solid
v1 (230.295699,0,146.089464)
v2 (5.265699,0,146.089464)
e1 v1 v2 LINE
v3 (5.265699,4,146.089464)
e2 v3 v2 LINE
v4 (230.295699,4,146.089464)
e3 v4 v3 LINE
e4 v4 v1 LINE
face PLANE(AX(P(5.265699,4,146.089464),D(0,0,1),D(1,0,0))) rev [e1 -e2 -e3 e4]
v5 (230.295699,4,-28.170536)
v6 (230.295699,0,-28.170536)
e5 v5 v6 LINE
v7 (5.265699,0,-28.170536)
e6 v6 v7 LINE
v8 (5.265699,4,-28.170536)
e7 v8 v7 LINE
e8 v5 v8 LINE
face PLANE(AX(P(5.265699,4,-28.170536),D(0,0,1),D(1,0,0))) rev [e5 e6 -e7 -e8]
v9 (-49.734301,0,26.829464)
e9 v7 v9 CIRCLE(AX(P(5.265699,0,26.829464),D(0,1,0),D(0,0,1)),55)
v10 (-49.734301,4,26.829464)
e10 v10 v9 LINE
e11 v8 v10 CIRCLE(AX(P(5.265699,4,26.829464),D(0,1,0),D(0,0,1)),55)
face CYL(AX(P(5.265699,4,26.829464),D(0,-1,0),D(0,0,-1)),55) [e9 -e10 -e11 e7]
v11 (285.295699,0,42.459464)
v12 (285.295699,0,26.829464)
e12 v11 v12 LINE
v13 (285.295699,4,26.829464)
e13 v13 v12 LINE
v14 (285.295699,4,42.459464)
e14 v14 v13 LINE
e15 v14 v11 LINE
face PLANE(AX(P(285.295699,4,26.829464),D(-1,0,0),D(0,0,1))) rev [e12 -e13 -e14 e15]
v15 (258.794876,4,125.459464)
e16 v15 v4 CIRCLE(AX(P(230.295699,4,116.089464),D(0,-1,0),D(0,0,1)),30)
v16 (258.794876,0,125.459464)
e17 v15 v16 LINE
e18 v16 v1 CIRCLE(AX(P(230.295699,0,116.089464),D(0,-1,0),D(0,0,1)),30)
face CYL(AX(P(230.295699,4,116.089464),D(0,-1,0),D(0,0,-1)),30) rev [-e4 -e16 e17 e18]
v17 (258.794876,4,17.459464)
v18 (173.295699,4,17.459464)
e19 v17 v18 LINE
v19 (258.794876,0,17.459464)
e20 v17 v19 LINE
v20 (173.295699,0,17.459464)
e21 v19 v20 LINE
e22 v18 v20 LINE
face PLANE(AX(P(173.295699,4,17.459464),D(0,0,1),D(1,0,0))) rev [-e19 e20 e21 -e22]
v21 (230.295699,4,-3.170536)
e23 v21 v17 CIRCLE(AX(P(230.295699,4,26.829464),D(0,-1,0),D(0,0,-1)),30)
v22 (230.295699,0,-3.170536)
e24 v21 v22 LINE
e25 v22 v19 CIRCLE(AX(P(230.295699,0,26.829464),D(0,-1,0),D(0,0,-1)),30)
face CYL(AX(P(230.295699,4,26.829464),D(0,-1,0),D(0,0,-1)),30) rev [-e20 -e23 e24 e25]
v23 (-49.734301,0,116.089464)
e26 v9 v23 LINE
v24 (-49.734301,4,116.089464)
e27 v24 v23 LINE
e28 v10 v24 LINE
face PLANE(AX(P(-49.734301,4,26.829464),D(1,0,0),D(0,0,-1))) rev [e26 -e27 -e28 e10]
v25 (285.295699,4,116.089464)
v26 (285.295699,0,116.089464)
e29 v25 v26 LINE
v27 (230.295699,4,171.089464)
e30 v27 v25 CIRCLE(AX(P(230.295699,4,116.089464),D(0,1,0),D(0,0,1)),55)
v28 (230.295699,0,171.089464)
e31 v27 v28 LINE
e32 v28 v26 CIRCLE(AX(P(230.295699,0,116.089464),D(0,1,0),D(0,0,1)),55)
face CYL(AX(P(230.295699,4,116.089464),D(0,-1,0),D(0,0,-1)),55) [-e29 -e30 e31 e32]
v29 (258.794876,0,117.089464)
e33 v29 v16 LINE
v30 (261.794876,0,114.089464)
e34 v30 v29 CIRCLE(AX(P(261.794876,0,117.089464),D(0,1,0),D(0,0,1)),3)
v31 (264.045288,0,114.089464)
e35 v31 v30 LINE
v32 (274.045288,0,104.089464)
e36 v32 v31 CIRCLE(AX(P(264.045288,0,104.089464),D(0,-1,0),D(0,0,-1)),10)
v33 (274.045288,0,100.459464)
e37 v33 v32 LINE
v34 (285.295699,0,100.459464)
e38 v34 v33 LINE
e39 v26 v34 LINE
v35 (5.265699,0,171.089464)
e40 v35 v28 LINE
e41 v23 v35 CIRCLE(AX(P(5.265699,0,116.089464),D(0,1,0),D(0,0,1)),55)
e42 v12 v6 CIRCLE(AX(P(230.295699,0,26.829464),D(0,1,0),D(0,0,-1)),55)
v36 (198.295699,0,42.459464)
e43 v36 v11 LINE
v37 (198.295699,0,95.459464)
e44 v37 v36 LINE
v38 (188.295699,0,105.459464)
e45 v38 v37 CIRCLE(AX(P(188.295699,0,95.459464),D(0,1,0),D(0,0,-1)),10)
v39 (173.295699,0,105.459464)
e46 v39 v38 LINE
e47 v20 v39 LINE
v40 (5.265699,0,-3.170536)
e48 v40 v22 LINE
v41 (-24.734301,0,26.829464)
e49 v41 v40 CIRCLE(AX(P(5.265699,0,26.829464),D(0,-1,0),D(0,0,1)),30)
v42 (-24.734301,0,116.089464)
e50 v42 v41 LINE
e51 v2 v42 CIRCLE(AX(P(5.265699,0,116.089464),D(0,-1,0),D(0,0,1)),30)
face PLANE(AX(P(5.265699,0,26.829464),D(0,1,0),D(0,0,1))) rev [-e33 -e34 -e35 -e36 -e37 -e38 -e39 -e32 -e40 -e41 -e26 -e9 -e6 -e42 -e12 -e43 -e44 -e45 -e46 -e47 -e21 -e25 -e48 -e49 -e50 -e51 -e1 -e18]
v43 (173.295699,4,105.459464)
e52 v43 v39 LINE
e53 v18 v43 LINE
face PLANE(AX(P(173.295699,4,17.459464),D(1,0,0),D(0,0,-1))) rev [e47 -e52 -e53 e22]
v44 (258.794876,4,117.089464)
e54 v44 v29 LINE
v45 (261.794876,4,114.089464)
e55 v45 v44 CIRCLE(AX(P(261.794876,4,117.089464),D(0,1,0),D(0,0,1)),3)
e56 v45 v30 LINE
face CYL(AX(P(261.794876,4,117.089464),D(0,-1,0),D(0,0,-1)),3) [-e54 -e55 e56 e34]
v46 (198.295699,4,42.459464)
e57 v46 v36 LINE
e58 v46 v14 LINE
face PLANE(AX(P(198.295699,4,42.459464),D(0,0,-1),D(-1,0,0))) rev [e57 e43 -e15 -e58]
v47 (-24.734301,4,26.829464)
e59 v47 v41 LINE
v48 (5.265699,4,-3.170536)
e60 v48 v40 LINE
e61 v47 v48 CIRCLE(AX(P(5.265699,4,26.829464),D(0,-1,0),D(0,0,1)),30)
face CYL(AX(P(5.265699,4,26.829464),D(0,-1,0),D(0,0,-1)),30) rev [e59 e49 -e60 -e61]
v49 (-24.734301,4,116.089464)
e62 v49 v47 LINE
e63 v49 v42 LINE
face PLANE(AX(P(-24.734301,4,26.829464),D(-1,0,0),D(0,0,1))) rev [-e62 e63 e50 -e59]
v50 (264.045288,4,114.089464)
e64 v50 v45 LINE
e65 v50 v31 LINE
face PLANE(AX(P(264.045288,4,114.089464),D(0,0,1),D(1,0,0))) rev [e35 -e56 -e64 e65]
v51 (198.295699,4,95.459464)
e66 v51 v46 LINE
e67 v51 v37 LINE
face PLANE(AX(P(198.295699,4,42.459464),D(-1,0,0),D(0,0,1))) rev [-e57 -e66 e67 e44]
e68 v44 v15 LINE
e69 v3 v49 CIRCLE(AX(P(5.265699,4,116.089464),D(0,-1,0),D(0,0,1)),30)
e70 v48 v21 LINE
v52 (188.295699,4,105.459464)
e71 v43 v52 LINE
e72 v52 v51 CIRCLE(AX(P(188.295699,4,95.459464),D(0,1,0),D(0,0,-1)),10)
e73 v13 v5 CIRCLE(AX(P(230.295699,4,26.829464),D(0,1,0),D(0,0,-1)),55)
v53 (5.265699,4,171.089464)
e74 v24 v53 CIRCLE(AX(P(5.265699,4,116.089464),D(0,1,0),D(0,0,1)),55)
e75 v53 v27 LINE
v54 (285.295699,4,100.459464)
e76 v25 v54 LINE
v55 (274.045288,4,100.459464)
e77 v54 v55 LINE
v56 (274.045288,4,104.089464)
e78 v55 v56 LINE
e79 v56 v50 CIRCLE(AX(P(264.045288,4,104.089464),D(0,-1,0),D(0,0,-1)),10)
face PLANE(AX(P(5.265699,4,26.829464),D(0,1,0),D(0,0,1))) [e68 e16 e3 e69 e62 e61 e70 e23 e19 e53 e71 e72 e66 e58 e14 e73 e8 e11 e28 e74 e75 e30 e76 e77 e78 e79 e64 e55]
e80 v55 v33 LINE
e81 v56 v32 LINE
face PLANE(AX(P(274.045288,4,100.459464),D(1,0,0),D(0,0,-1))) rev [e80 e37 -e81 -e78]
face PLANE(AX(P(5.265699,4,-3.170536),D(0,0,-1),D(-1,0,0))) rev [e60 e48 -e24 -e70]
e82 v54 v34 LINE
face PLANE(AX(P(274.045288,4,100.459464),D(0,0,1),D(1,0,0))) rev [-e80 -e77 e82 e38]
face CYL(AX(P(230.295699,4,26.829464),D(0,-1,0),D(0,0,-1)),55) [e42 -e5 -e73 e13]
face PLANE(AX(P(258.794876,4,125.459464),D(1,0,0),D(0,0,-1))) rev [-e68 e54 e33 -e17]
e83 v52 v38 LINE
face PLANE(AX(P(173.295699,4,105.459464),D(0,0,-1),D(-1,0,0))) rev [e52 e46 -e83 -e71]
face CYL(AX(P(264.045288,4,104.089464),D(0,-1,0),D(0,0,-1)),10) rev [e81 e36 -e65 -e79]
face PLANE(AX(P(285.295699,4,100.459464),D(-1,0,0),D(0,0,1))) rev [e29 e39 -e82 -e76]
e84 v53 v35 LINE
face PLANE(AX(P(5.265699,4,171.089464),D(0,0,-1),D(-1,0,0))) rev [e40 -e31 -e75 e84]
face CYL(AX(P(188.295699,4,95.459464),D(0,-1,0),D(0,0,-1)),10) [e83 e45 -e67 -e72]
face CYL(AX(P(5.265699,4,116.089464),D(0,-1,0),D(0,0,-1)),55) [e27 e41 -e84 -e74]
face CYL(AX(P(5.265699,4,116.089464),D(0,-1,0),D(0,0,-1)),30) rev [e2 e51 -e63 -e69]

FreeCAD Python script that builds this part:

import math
import FreeCAD as App
import Part
import Sketcher
from FreeCAD import Vector
Q = App.Units.Quantity

doc = App.newDocument("Part")
params = doc.addObject("Spreadsheet::Sheet", "Params")
for row, (alias, value) in enumerate([
    ("sketch1_radius", "10 mm"),
    ("sketch1_radius2", "3 mm"),
    ("sketch1_radius3", "30 mm"),
    ("sketch1_radius4", "55 mm"),
    ("sketch1_width", "15 mm"),
    ("pad1_length", "4 mm"),
], start=1):
    params.set(f"A{row}", alias)
    params.set(f"B{row}", "=" + value)
    params.setAlias(f"B{row}", alias)

body = doc.addObject("PartDesign::Body", "Body")

# Sketch on XZ plane
sketch1 = body.newObject("Sketcher::SketchObject", "Sketch")
sketch1.AttachmentSupport = (doc.getObject("XZ_Plane"), [""])
sketch1.MapMode = "FlatFace"
sketch1.addGeometry(Part.LineSegment(Vector(285.3, 116.1, 0), Vector(285.3, 100.5, 0)), False)
sketch1.addGeometry(Part.LineSegment(Vector(285.3, 100.5, 0), Vector(274, 100.5, 0)), False)
sketch1.addGeometry(Part.LineSegment(Vector(274, 100.5, 0), Vector(274, 104.1, 0)), False)
sketch1.addGeometry(Part.ArcOfCircle(Part.Circle(Vector(264, 104.1, 0), Vector(0, 0, 1), 10), math.radians(0), math.radians(90)), False)
sketch1.addGeometry(Part.LineSegment(Vector(264, 114.1, 0), Vector(261.8, 114.1, 0)), False)
sketch1.addGeometry(Part.ArcOfCircle(Part.Circle(Vector(261.8, 117.1, 0), Vector(0, 0, 1), 3), math.radians(180), math.radians(270)), False)
sketch1.addGeometry(Part.LineSegment(Vector(258.8, 117.1, 0), Vector(258.8, 125.5, 0)), False)
sketch1.addGeometry(Part.ArcOfCircle(Part.Circle(Vector(230.3, 116.1, 0), Vector(0, 0, 1), 30), math.radians(18), math.radians(90)), False)
sketch1.addGeometry(Part.LineSegment(Vector(230.3, 146.1, 0), Vector(5.3, 146.1, 0)), False)
sketch1.addGeometry(Part.ArcOfCircle(Part.Circle(Vector(5.3, 116.1, 0), Vector(0, 0, 1), 30), math.radians(90), math.radians(180)), False)
sketch1.addGeometry(Part.LineSegment(Vector(-24.7, 116.1, 0), Vector(-24.7, 26.8, 0)), False)
sketch1.addGeometry(Part.ArcOfCircle(Part.Circle(Vector(5.3, 26.8, 0), Vector(0, 0, 1), 30), math.radians(180), math.radians(270)), False)
sketch1.addGeometry(Part.LineSegment(Vector(5.3, -3.2, 0), Vector(230.3, -3.2, 0)), False)
sketch1.addGeometry(Part.ArcOfCircle(Part.Circle(Vector(230.3, 26.8, 0), Vector(0, 0, 1), 30), math.radians(-90), math.radians(-18)), False)
sketch1.addGeometry(Part.LineSegment(Vector(258.8, 17.5, 0), Vector(173.3, 17.5, 0)), False)
sketch1.addGeometry(Part.LineSegment(Vector(173.3, 17.5, 0), Vector(173.3, 105.5, 0)), False)
sketch1.addGeometry(Part.LineSegment(Vector(173.3, 105.5, 0), Vector(188.3, 105.5, 0)), False)
sketch1.addGeometry(Part.ArcOfCircle(Part.Circle(Vector(188.3, 95.5, 0), Vector(0, 0, 1), 10), math.radians(0), math.radians(90)), False)
sketch1.addGeometry(Part.LineSegment(Vector(198.3, 95.5, 0), Vector(198.3, 42.5, 0)), False)
sketch1.addGeometry(Part.LineSegment(Vector(198.3, 42.5, 0), Vector(285.3, 42.5, 0)), False)
sketch1.addGeometry(Part.LineSegment(Vector(285.3, 42.5, 0), Vector(285.3, 26.8, 0)), False)
sketch1.addGeometry(Part.ArcOfCircle(Part.Circle(Vector(230.3, 26.8, 0), Vector(0, 0, 1), 55), math.radians(-90), math.radians(0)), False)
sketch1.addGeometry(Part.LineSegment(Vector(230.3, -28.2, 0), Vector(5.3, -28.2, 0)), False)
sketch1.addGeometry(Part.ArcOfCircle(Part.Circle(Vector(5.3, 26.8, 0), Vector(0, 0, 1), 55), math.radians(180), math.radians(270)), False)
sketch1.addGeometry(Part.LineSegment(Vector(-49.7, 26.8, 0), Vector(-49.7, 116.1, 0)), False)
sketch1.addGeometry(Part.ArcOfCircle(Part.Circle(Vector(5.3, 116.1, 0), Vector(0, 0, 1), 55), math.radians(90), math.radians(180)), False)
sketch1.addGeometry(Part.LineSegment(Vector(5.3, 171.1, 0), Vector(230.3, 171.1, 0)), False)
sketch1.addGeometry(Part.ArcOfCircle(Part.Circle(Vector(230.3, 116.1, 0), Vector(0, 0, 1), 55), math.radians(0), math.radians(90)), False)
sketch1.addConstraint(Sketcher.Constraint("Coincident", 0, 2, 1, 1))
sketch1.addConstraint(Sketcher.Constraint("Coincident", 1, 2, 2, 1))
sketch1.addConstraint(Sketcher.Constraint("Tangent", 2, 2, 3, 1))
sketch1.addConstraint(Sketcher.Constraint("Tangent", 3, 2, 4, 1))
sketch1.addConstraint(Sketcher.Constraint("Tangent", 4, 2, 5, 2))
sketch1.addConstraint(Sketcher.Constraint("Tangent", 5, 1, 6, 1))
sketch1.addConstraint(Sketcher.Constraint("Coincident", 6, 2, 7, 1))
sketch1.addConstraint(Sketcher.Constraint("Tangent", 7, 2, 8, 1))
sketch1.addConstraint(Sketcher.Constraint("Tangent", 8, 2, 9, 1))
sketch1.addConstraint(Sketcher.Constraint("Tangent", 9, 2, 10, 1))
sketch1.addConstraint(Sketcher.Constraint("Tangent", 10, 2, 11, 1))
sketch1.addConstraint(Sketcher.Constraint("Tangent", 11, 2, 12, 1))
sketch1.addConstraint(Sketcher.Constraint("Tangent", 12, 2, 13, 1))
sketch1.addConstraint(Sketcher.Constraint("Coincident", 13, 2, 14, 1))
sketch1.addConstraint(Sketcher.Constraint("Coincident", 14, 2, 15, 1))
sketch1.addConstraint(Sketcher.Constraint("Coincident", 15, 2, 16, 1))
sketch1.addConstraint(Sketcher.Constraint("Tangent", 16, 2, 17, 2))
sketch1.addConstraint(Sketcher.Constraint("Tangent", 17, 1, 18, 1))
sketch1.addConstraint(Sketcher.Constraint("Coincident", 18, 2, 19, 1))
sketch1.addConstraint(Sketcher.Constraint("Coincident", 19, 2, 20, 1))
sketch1.addConstraint(Sketcher.Constraint("Tangent", 20, 2, 21, 2))
sketch1.addConstraint(Sketcher.Constraint("Tangent", 21, 1, 22, 1))
sketch1.addConstraint(Sketcher.Constraint("Tangent", 22, 2, 23, 2))
sketch1.addConstraint(Sketcher.Constraint("Tangent", 23, 1, 24, 1))
sketch1.addConstraint(Sketcher.Constraint("Tangent", 24, 2, 25, 2))
sketch1.addConstraint(Sketcher.Constraint("Tangent", 25, 1, 26, 1))
sketch1.addConstraint(Sketcher.Constraint("Tangent", 26, 2, 27, 2))
sketch1.addConstraint(Sketcher.Constraint("Tangent", 27, 1, 0, 1))
sketch1.addConstraint(Sketcher.Constraint("Vertical", 0))
sketch1.addConstraint(Sketcher.Constraint("Horizontal", 1))
sketch1.addConstraint(Sketcher.Constraint("Vertical", 2))
sketch1.addConstraint(Sketcher.Constraint("Horizontal", 4))
sketch1.addConstraint(Sketcher.Constraint("Vertical", 6))
sketch1.addConstraint(Sketcher.Constraint("Horizontal", 8))
sketch1.addConstraint(Sketcher.Constraint("Vertical", 10))
sketch1.addConstraint(Sketcher.Constraint("Horizontal", 12))
sketch1.addConstraint(Sketcher.Constraint("Horizontal", 14))
sketch1.addConstraint(Sketcher.Constraint("Vertical", 15))
sketch1.addConstraint(Sketcher.Constraint("Horizontal", 16))
sketch1.addConstraint(Sketcher.Constraint("Vertical", 18))
sketch1.addConstraint(Sketcher.Constraint("Horizontal", 19))
sketch1.addConstraint(Sketcher.Constraint("Vertical", 20))
sketch1.addConstraint(Sketcher.Constraint("Horizontal", 22))
sketch1.addConstraint(Sketcher.Constraint("Vertical", 24))
sketch1.addConstraint(Sketcher.Constraint("Horizontal", 26))
sketch1.addConstraint(Sketcher.Constraint("Coincident", 21, 3, 13, 3))
sketch1.addConstraint(Sketcher.Constraint("Coincident", 23, 3, 11, 3))
sketch1.addConstraint(Sketcher.Constraint("Coincident", 25, 3, 9, 3))
sketch1.addConstraint(Sketcher.Constraint("Coincident", 27, 3, 7, 3))
sketch1.addConstraint(Sketcher.Constraint("Equal", 7, 9))
sketch1.addConstraint(Sketcher.Constraint("Equal", 9, 11))
sketch1.addConstraint(Sketcher.Constraint("Equal", 11, 13))
sketch1.addConstraint(Sketcher.Constraint("Equal", 3, 17))
sketch1.addConstraint(Sketcher.Constraint("Vertical", 7, 3, 13, 3))
sketch1.addConstraint(Sketcher.Constraint("Vertical", 6, 2, 13, 2))
sketch1.addConstraint(Sketcher.Constraint("Equal", 0, 20))
sketch1.addConstraint(Sketcher.Constraint("Radius", 3, Q("10 mm")))
sketch1.addConstraint(Sketcher.Constraint("Radius", 5, Q("3 mm")))
sketch1.addConstraint(Sketcher.Constraint("Radius", 7, Q("30 mm")))
sketch1.addConstraint(Sketcher.Constraint("Radius", 21, Q("55 mm")))
sketch1.addConstraint(Sketcher.Constraint("DistanceX", 16, 1, 16, 2, Q("15 mm")))
sketch1.addConstraint(Sketcher.Constraint("DistanceX", 19, 1, 19, 2, Q("87 mm")))
sketch1.addConstraint(Sketcher.Constraint("DistanceY", 15, 1, 15, 2, Q("88 mm")))
sketch1.addConstraint(Sketcher.Constraint("DistanceY", 18, 2, 18, 1, Q("53 mm")))
sketch1.addConstraint(Sketcher.Constraint("DistanceY", 7, 3, 5, 3, Q("1 mm")))
sketch1.addConstraint(Sketcher.Constraint("DistanceY", 13, 2, 1, 2, Q("83 mm")))
sketch1.addConstraint(Sketcher.Constraint("DistanceX", 8, 2, 8, 1, Q("225.03 mm")))
sketch1.addConstraint(Sketcher.Constraint("DistanceY", 0, 2, 0, 1, Q("15.63 mm")))
sketch1.addConstraint(Sketcher.Constraint("DistanceX", 1, 2, 1, 1, Q("11.250411 mm")))
sketch1.addConstraint(Sketcher.Constraint("DistanceX", -1, 1, 7, 3, Q("230.295699 mm")))
sketch1.addConstraint(Sketcher.Constraint("DistanceY", -1, 1, 3, 3, Q("104.089464 mm")))
sketch1.setExpression("Constraints[56]", "Params.sketch1_radius")
sketch1.setExpression("Constraints[57]", "Params.sketch1_radius2")
sketch1.setExpression("Constraints[58]", "Params.sketch1_radius3")
sketch1.setExpression("Constraints[59]", "Params.sketch1_radius4")
sketch1.setExpression("Constraints[60]", "Params.sketch1_width")
pad1 = body.newObject("PartDesign::Pad", "Pad")
pad1.Profile = sketch1
pad1.setExpression("Length", "Params.pad1_length")
pad1.Reversed = True

doc.recompute()
